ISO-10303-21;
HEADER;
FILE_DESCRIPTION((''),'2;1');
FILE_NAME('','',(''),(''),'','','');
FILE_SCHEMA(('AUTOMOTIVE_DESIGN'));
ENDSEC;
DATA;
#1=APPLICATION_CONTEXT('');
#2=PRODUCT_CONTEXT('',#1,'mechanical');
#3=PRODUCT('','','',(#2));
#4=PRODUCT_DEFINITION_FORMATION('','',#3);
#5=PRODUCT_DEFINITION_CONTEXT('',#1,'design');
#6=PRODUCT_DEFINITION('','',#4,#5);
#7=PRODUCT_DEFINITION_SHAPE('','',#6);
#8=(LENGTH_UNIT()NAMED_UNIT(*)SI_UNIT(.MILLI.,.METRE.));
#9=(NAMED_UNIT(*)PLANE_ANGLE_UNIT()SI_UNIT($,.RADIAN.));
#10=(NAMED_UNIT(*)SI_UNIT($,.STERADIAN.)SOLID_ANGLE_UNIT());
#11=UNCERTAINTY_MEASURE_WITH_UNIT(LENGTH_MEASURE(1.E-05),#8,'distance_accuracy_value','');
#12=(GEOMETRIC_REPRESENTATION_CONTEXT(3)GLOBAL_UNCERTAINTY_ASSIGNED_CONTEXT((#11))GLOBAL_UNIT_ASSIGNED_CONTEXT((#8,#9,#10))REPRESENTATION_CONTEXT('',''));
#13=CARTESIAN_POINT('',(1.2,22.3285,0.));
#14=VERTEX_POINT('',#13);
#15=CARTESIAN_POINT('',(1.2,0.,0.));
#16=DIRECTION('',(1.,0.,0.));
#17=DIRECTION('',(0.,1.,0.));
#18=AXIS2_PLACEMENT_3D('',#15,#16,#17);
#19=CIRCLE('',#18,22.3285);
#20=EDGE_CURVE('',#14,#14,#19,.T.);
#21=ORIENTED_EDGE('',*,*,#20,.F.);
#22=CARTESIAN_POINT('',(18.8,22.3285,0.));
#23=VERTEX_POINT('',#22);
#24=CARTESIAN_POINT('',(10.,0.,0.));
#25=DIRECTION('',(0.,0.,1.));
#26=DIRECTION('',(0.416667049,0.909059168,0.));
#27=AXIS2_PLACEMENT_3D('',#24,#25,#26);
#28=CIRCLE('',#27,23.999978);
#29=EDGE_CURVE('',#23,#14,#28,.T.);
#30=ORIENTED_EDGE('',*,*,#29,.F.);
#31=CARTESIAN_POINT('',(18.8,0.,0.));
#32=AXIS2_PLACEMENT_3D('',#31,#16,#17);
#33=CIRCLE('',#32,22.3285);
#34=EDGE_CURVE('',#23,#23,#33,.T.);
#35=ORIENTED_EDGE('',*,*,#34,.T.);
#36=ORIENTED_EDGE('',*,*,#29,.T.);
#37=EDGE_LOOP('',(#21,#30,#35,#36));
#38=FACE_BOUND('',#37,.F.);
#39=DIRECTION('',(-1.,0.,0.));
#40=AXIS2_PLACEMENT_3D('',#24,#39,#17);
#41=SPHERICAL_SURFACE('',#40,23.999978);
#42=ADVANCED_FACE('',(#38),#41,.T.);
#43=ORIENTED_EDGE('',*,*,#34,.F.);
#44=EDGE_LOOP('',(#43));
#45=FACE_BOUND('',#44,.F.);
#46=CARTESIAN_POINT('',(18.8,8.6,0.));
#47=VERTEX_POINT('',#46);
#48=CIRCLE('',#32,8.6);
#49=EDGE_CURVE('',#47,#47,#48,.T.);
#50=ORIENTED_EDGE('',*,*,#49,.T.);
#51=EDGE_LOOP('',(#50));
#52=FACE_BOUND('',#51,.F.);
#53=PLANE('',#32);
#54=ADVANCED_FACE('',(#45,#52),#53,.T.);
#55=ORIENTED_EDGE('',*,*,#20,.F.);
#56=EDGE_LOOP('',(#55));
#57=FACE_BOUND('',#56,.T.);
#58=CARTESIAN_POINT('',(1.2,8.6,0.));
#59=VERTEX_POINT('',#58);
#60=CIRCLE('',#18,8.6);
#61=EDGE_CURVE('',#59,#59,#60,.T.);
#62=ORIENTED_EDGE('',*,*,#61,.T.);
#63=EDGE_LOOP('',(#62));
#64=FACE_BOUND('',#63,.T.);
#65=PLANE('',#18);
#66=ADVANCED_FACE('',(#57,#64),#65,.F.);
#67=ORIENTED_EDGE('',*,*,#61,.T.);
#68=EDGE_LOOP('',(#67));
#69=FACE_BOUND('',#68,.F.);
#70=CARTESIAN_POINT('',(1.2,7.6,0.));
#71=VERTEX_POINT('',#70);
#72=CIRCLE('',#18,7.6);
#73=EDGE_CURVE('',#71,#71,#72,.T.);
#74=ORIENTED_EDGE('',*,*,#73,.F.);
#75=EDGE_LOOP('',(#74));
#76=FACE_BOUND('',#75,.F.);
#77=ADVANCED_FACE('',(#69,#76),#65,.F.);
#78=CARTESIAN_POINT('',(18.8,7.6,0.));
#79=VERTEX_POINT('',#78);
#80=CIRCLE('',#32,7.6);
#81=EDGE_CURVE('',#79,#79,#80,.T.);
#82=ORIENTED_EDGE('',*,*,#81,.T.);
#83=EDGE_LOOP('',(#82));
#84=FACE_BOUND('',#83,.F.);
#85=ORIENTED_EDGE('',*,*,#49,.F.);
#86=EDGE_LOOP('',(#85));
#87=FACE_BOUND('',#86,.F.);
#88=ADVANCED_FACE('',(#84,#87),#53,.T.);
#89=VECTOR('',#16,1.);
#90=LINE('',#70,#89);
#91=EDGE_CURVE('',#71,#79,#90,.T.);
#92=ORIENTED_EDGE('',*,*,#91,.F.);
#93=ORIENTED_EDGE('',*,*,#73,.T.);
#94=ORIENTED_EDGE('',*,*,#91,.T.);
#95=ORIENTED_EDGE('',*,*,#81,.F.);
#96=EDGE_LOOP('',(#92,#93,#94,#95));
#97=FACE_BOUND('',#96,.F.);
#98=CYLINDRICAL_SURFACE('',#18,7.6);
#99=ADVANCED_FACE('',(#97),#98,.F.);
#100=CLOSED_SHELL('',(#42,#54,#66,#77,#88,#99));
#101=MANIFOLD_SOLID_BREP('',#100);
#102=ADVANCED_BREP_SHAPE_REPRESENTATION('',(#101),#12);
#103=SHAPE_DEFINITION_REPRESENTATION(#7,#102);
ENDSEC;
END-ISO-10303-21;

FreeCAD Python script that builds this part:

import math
import FreeCAD as App
import Part
import Sketcher

doc = App.newDocument("Part")
body = doc.addObject("PartDesign::Body", "Body")

# Sketch on XY plane
sketch1 = body.newObject("Sketcher::SketchObject", "Sketch")
sketch1.AttachmentSupport = (doc.getObject("XY_Plane"), [""])
sketch1.MapMode = "FlatFace"
sketch1.addGeometry([
    Part.LineSegment(App.Vector(1, 22, 0), App.Vector(1, 8, 0)),
    Part.LineSegment(App.Vector(1, 8, 0), App.Vector(19, 8, 0)),
    Part.LineSegment(App.Vector(19, 8, 0), App.Vector(19, 22, 0)),
    Part.ArcOfCircle(Part.Circle(App.Vector(10, 0, 0), App.Vector(0, 0, 1), 24), math.radians(68), math.radians(112)),
], False)
sketch1.addConstraint([
    Sketcher.Constraint("Coincident", 0, 2, 1, 1),
    Sketcher.Constraint("Coincident", 1, 2, 2, 1),
    Sketcher.Constraint("Coincident", 2, 2, 3, 1),
    Sketcher.Constraint("Coincident", 3, 2, 0, 1),
    Sketcher.Constraint("Vertical", 0),
    Sketcher.Constraint("Horizontal", 1),
    Sketcher.Constraint("Vertical", 2),
    Sketcher.Constraint("PointOnObject", 3, 3, -1),
    Sketcher.Constraint("Horizontal", 2, 2, 3, 2),
    Sketcher.Constraint("Radius", 3, 24.0),
    Sketcher.Constraint("DistanceX", -1, 1, 0, 2, 1.2),
    Sketcher.Constraint("DistanceY", -1, 1, 0, 2, 7.6),
    Sketcher.Constraint("DistanceX", 1, 1, 1, 2, 17.6),
])
revolution = body.newObject("PartDesign::Revolution", "Revolution")
revolution.Profile = sketch1
revolution.ReferenceAxis = (sketch1, ["H_Axis"])
revolution.Angle = 360

doc.recompute()
